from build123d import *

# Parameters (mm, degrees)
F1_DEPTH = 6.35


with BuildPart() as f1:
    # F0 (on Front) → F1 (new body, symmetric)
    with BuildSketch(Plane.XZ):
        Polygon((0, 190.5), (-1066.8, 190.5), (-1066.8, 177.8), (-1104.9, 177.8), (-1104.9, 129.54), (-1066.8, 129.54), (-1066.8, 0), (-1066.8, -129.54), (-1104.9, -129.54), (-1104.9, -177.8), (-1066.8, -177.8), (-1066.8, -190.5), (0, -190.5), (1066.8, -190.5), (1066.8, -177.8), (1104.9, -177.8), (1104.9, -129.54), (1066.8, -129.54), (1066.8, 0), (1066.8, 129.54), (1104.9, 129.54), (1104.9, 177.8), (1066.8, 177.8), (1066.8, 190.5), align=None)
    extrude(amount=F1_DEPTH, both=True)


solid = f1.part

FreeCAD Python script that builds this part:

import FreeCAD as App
import Part
import Sketcher
from FreeCAD import Vector
Q = App.Units.Quantity


def add_polygon(sketch, points):
    """Adds a closed chain of lines whose ends are joined by coincident constraints."""
    first, n = sketch.GeometryCount, len(points)
    for a, b in zip(points, points[1:] + points[:1]):
        sketch.addGeometry(Part.LineSegment(App.Vector(*a, 0), App.Vector(*b, 0)), False)
    for i in range(n):
        sketch.addConstraint(Sketcher.Constraint("Coincident", first + i, 2, first + (i + 1) % n, 1))

doc = App.newDocument("Part")
params = doc.addObject("Spreadsheet::Sheet", "Params")
for row, (alias, value) in enumerate([
    ("sketch1_width", "84 in"),
    ("sketch1_width2", "1.5 in"),
    ("sketch1_height", "0.5 in"),
    ("sketch1_height2", "1.9 in"),
    ("sketch1_height3", "10.2 in"),
    ("pad1_length", "0.5 in"),
], start=1):
    params.set(f"A{row}", alias)
    params.set(f"B{row}", "=" + value)
    params.setAlias(f"B{row}", alias)

body = doc.addObject("PartDesign::Body", "Body")

# Sketch on XZ plane
sketch1 = body.newObject("Sketcher::SketchObject", "Sketch")
sketch1.AttachmentSupport = (doc.getObject("XZ_Plane"), [""])
sketch1.MapMode = "FlatFace"
add_polygon(sketch1, [(-1067, 190), (-1067, 178), (-1105, 178), (-1105, 130), (-1067, 130), (-1067, -130), (-1105, -130), (-1105, -178), (-1067, -178), (-1067, -190), (1067, -190), (1067, -178), (1105, -178), (1105, -130), (1067, -130), (1067, 130), (1105, 130), (1105, 178), (1067, 178), (1067, 190)])  # lines 0-19
sketch1.addConstraint(Sketcher.Constraint("Vertical", 0))
sketch1.addConstraint(Sketcher.Constraint("Horizontal", 1))
sketch1.addConstraint(Sketcher.Constraint("Vertical", 2))
sketch1.addConstraint(Sketcher.Constraint("Horizontal", 3))
sketch1.addConstraint(Sketcher.Constraint("Vertical", 4))
sketch1.addConstraint(Sketcher.Constraint("Horizontal", 5))
sketch1.addConstraint(Sketcher.Constraint("Vertical", 6))
sketch1.addConstraint(Sketcher.Constraint("Horizontal", 7))
sketch1.addConstraint(Sketcher.Constraint("Vertical", 8))
sketch1.addConstraint(Sketcher.Constraint("Horizontal", 9))
sketch1.addConstraint(Sketcher.Constraint("Vertical", 10))
sketch1.addConstraint(Sketcher.Constraint("Horizontal", 11))
sketch1.addConstraint(Sketcher.Constraint("Vertical", 12))
sketch1.addConstraint(Sketcher.Constraint("Horizontal", 13))
sketch1.addConstraint(Sketcher.Constraint("Vertical", 14))
sketch1.addConstraint(Sketcher.Constraint("Horizontal", 15))
sketch1.addConstraint(Sketcher.Constraint("Vertical", 16))
sketch1.addConstraint(Sketcher.Constraint("Horizontal", 17))
sketch1.addConstraint(Sketcher.Constraint("Vertical", 18))
sketch1.addConstraint(Sketcher.Constraint("Horizontal", 19))
sketch1.addConstraint(Sketcher.Constraint("Symmetric", 0, 2, 10, 2, -1, 1))
sketch1.addConstraint(Sketcher.Constraint("Symmetric", 2, 2, 12, 2, -1, 1))
sketch1.addConstraint(Sketcher.Constraint("Symmetric", 4, 2, 14, 2, -1, 1))
sketch1.addConstraint(Sketcher.Constraint("Symmetric", 6, 2, 16, 2, -1, 1))
sketch1.addConstraint(Sketcher.Constraint("Symmetric", 8, 2, 18, 2, -1, 1))
sketch1.addConstraint(Sketcher.Constraint("Symmetric", 7, 2, 10, 2, -2))
sketch1.addConstraint(Sketcher.Constraint("Symmetric", 5, 2, 12, 2, -2))
sketch1.addConstraint(Sketcher.Constraint("Vertical", 0, 2, 3, 2))
sketch1.addConstraint(Sketcher.Constraint("DistanceX", 9, 1, 9, 2, Q("84 in")))
sketch1.addConstraint(Sketcher.Constraint("DistanceX", 1, 2, 1, 1, Q("1.5 in")))
sketch1.addConstraint(Sketcher.Constraint("DistanceY", 0, 2, 0, 1, Q("0.5 in")))
sketch1.addConstraint(Sketcher.Constraint("DistanceY", 2, 2, 2, 1, Q("1.9 in")))
sketch1.addConstraint(Sketcher.Constraint("DistanceY", 4, 2, 4, 1, Q("10.2 in")))
sketch1.setExpression("Constraints[48]", "Params.sketch1_width")
sketch1.setExpression("Constraints[49]", "Params.sketch1_width2")
sketch1.setExpression("Constraints[50]", "Params.sketch1_height")
sketch1.setExpression("Constraints[51]", "Params.sketch1_height2")
sketch1.setExpression("Constraints[52]", "Params.sketch1_height3")
pad1 = body.newObject("PartDesign::Pad", "Pad")
pad1.Profile = sketch1
pad1.setExpression("Length", "Params.pad1_length")
pad1.Midplane = True

doc.recompute()
